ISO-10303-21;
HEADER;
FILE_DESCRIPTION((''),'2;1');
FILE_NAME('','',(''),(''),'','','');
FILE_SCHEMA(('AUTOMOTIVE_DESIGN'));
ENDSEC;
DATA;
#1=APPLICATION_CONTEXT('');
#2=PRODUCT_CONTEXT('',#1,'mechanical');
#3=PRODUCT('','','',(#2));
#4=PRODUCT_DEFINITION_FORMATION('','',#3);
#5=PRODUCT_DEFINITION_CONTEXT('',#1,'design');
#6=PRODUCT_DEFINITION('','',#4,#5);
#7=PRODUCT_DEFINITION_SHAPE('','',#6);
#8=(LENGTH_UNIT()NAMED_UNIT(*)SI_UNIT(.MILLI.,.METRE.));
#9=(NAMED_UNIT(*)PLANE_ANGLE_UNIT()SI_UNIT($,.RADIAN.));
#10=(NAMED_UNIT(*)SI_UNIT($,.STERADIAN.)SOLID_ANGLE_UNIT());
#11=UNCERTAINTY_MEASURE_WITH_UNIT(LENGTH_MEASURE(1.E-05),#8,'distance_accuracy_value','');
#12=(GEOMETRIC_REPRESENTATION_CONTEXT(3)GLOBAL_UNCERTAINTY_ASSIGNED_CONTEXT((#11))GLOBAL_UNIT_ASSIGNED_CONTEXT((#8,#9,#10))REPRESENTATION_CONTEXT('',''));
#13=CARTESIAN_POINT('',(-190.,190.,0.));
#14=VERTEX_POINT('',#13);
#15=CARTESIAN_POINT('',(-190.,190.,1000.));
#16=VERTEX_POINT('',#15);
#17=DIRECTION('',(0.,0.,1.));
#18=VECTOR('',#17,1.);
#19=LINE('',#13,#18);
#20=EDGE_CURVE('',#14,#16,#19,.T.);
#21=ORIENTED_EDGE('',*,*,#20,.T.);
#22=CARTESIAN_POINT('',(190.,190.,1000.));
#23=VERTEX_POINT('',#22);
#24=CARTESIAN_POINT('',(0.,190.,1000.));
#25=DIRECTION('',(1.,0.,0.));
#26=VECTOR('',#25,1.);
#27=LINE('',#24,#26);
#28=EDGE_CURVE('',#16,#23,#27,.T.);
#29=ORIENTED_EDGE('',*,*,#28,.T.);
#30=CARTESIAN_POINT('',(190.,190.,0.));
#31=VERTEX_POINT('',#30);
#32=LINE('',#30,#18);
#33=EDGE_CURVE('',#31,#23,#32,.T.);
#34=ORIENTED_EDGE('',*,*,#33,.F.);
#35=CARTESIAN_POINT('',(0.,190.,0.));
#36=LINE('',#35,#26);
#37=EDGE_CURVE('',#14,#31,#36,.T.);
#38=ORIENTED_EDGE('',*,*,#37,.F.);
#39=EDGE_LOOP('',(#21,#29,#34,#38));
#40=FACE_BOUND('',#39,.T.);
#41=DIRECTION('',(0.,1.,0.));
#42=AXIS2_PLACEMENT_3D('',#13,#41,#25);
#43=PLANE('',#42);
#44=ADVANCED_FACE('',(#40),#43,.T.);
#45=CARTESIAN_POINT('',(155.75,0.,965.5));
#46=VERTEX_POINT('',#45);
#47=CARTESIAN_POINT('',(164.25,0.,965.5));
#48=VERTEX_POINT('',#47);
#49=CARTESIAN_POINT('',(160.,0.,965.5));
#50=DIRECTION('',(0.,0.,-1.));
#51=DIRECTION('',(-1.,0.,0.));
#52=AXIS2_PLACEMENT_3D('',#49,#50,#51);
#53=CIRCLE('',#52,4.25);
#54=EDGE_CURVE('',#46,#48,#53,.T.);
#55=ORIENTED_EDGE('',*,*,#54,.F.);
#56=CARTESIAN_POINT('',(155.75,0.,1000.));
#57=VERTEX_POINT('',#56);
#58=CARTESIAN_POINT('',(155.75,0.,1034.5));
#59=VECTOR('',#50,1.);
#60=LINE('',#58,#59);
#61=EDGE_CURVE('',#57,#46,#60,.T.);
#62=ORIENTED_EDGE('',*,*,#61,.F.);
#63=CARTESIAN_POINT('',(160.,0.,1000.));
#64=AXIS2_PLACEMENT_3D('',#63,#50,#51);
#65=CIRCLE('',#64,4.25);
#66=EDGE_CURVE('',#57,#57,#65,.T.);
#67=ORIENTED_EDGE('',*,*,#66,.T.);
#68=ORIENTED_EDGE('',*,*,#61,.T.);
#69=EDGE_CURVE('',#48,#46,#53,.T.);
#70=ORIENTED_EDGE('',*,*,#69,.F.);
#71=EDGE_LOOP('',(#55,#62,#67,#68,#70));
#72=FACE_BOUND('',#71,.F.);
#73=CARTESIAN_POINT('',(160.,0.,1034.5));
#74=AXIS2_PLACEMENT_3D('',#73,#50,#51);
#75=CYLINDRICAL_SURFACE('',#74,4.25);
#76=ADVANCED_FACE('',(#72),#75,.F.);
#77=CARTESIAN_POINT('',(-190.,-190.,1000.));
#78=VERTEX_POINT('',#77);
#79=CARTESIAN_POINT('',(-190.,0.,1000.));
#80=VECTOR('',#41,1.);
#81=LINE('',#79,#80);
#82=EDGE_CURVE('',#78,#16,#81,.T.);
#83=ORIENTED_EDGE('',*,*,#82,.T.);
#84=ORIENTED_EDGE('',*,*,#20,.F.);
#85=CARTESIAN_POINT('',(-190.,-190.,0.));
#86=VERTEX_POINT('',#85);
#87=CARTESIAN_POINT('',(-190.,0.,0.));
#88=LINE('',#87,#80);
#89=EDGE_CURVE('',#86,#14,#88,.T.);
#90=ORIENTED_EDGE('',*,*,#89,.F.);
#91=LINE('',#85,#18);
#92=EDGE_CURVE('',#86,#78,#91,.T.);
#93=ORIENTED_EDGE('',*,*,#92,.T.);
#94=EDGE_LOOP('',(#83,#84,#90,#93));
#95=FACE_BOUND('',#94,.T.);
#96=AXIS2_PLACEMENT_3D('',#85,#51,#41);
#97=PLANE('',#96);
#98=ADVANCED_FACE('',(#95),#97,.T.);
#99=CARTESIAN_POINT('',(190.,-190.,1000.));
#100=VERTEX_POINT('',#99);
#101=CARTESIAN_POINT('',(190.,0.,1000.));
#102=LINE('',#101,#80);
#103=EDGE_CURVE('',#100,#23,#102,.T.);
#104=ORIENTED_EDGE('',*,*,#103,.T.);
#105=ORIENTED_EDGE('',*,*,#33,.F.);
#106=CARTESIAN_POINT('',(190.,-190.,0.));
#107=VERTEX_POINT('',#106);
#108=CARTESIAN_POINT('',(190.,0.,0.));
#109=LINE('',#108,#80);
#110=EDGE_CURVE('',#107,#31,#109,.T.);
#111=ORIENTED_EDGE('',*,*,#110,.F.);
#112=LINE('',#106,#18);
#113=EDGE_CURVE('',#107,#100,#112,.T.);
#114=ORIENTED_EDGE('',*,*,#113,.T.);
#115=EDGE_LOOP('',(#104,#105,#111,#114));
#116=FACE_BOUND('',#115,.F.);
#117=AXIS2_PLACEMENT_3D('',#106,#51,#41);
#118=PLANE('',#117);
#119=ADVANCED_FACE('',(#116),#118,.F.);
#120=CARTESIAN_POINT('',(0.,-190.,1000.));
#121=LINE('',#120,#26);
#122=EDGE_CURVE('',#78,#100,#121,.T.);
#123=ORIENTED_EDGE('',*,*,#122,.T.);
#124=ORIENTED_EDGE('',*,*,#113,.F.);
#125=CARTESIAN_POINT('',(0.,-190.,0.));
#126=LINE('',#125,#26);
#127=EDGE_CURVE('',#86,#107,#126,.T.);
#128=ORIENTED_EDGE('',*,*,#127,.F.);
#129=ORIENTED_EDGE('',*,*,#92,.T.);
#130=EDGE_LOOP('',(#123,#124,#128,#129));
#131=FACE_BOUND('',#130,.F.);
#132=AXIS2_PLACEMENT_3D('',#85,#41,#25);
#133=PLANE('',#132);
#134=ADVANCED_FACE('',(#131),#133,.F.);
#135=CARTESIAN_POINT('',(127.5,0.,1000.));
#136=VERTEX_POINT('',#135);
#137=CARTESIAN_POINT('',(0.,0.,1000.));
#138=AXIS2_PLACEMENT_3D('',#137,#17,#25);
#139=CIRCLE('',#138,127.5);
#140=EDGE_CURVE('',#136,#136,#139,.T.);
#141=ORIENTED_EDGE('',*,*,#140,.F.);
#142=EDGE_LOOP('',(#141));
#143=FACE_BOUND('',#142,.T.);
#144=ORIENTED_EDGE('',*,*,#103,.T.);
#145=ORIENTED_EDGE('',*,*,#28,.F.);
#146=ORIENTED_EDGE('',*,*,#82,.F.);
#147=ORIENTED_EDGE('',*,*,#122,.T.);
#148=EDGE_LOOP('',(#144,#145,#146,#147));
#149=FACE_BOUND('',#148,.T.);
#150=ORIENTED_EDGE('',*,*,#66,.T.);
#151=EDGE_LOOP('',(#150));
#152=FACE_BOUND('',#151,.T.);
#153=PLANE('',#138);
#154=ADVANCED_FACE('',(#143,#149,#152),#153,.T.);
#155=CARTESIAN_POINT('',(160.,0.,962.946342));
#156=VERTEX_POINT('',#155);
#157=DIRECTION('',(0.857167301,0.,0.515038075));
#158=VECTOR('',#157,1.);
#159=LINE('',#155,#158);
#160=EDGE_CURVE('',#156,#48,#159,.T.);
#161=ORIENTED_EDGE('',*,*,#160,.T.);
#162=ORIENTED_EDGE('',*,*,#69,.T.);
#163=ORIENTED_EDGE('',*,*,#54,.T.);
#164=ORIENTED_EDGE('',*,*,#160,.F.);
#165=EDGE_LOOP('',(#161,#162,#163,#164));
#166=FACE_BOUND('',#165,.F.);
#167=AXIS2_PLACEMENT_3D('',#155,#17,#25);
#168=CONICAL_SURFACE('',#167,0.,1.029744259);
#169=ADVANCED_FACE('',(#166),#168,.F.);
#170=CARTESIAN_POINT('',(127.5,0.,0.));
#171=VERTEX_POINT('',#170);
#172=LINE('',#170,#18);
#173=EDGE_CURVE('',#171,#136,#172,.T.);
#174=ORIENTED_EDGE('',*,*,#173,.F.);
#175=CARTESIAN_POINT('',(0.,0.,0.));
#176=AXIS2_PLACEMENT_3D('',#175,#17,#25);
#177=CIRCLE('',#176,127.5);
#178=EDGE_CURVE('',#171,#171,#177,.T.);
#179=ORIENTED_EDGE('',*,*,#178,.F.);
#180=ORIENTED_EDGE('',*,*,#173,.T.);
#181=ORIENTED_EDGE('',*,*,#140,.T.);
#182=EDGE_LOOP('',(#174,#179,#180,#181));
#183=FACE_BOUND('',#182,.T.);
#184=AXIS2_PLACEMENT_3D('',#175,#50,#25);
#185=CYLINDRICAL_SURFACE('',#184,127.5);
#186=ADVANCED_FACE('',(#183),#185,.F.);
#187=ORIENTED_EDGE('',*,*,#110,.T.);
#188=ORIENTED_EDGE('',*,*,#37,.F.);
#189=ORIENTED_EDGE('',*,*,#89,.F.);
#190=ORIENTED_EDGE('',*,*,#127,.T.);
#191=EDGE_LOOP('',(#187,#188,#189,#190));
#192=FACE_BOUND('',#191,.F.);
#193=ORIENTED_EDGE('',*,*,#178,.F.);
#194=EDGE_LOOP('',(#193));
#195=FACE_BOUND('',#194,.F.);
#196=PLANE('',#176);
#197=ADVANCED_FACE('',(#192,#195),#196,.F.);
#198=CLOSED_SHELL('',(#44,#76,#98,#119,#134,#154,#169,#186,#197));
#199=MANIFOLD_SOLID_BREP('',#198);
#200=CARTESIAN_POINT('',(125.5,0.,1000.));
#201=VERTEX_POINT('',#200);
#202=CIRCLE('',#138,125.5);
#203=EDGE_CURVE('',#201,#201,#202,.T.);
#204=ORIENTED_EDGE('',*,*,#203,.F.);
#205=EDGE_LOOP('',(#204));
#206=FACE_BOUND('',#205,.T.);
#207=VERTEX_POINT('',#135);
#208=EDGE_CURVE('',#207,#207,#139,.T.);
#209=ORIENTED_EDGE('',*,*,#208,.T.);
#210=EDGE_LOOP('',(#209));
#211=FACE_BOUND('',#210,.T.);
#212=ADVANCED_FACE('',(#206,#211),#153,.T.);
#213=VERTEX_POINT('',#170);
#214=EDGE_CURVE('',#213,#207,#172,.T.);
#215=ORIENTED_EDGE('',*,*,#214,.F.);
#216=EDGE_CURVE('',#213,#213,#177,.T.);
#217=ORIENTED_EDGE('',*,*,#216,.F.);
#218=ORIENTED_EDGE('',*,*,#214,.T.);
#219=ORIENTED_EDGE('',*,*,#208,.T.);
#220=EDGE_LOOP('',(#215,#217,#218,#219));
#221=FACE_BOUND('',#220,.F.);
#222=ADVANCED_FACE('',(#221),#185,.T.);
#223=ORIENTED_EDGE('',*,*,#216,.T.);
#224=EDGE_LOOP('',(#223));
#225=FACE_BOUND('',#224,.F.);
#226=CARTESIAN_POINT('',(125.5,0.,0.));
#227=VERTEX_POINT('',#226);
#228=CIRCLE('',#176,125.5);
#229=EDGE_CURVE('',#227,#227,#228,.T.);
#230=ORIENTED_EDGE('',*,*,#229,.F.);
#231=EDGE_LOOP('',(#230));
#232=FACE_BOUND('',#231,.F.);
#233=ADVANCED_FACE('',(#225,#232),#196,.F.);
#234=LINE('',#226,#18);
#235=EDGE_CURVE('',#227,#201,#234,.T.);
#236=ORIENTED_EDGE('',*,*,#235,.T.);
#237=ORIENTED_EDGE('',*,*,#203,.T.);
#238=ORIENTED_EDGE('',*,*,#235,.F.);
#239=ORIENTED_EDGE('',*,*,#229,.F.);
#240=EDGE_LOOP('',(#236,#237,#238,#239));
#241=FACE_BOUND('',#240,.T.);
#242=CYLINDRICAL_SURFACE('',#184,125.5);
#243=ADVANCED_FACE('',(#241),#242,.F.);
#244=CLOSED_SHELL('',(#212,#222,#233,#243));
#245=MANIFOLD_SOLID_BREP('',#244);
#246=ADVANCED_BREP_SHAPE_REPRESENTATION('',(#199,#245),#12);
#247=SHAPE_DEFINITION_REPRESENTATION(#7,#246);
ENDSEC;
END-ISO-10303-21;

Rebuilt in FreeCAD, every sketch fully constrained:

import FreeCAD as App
import Part
import Sketcher

doc = App.newDocument("Part")
body = doc.addObject("PartDesign::Body", "Body")

# Sketch on XY plane
sketch1 = body.newObject("Sketcher::SketchObject", "Sketch")
sketch1.AttachmentSupport = (doc.getObject("XY_Plane"), [""])
sketch1.MapMode = "FlatFace"
sketch1.addGeometry([
    Part.LineSegment(App.Vector(-190, 190, 0), App.Vector(-190, -190, 0)),  # 0
    Part.LineSegment(App.Vector(-190, -190, 0), App.Vector(190, -190, 0)),  # 1
    Part.LineSegment(App.Vector(190, -190, 0), App.Vector(190, 190, 0)),  # 2
    Part.LineSegment(App.Vector(190, 190, 0), App.Vector(-190, 190, 0)),  # 3
    Part.Circle(App.Vector(0, 0, 0), App.Vector(0, 0, 1), 128),  # 4
], False)
sketch1.addConstraint([
    Sketcher.Constraint("Coincident", 0, 2, 1, 1),
    Sketcher.Constraint("Coincident", 1, 2, 2, 1),
    Sketcher.Constraint("Coincident", 2, 2, 3, 1),
    Sketcher.Constraint("Coincident", 3, 2, 0, 1),
    Sketcher.Constraint("Vertical", 0),
    Sketcher.Constraint("Horizontal", 1),
    Sketcher.Constraint("Vertical", 2),
    Sketcher.Constraint("Horizontal", 3),
    Sketcher.Constraint("Coincident", 4, 3, -1, 1),
    Sketcher.Constraint("Symmetric", 0, 2, 2, 2, -1, 1),
    Sketcher.Constraint("Equal", 3, 0),
    Sketcher.Constraint("Diameter", 4, 255.0),
    Sketcher.Constraint("DistanceX", 1, 1, 1, 2, 380.0),
])
pad1 = body.newObject("PartDesign::Pad", "Pad")
pad1.Profile = sketch1
pad1.Length = 1000

# Sketch on XY plane
sketch2 = body.newObject("Sketcher::SketchObject", "Sketch001")
sketch2.AttachmentSupport = (doc.getObject("XY_Plane"), [""])
sketch2.MapMode = "FlatFace"
sketch2.AttachmentOffset = App.Placement(App.Vector(0, 0, 1000), App.Rotation())
sketch2.addGeometry(Part.Circle(App.Vector(160, 0, 0), App.Vector(0, 0, 1), 4.2), False)
sketch2.addConstraint([
    Sketcher.Constraint("PointOnObject", 0, 3, -1),
    Sketcher.Constraint("Diameter", 0, 8.5),
    Sketcher.Constraint("DistanceX", -1, 1, 0, 3, 160.0),
])
doc.recompute()
hole = body.newObject("PartDesign::Hole", "Hole")
hole.Profile = sketch2
hole.ThreadType = "None"
hole.Diameter = 8.5
hole.DepthType = "Dimension"
hole.Depth = 34.5
hole.DrillPoint = "Angled"
hole.DrillPointAngle = 118
body2 = doc.addObject("PartDesign::Body", "Body001")

# Sketch on XY plane
sketch3 = body2.newObject("Sketcher::SketchObject", "Sketch002")
sketch3.AttachmentSupport = (doc.getObject("XY_Plane001"), [""])
sketch3.MapMode = "FlatFace"
sketch3.addGeometry([
    Part.Circle(App.Vector(0, 0, 0), App.Vector(0, 0, 1), 128),
    Part.Circle(App.Vector(0, 0, 0), App.Vector(0, 0, 1), 126),
], False)
sketch3.addConstraint([
    Sketcher.Constraint("Coincident", 0, 3, -1, 1),
    Sketcher.Constraint("Coincident", 1, 3, -1, 1),
    Sketcher.Constraint("Diameter", 0, 255.0),
    Sketcher.Constraint("Diameter", 1, 251.0),
])
pad2 = body2.newObject("PartDesign::Pad", "Pad001")
pad2.Profile = sketch3
pad2.Length = 1000

doc.recompute()
